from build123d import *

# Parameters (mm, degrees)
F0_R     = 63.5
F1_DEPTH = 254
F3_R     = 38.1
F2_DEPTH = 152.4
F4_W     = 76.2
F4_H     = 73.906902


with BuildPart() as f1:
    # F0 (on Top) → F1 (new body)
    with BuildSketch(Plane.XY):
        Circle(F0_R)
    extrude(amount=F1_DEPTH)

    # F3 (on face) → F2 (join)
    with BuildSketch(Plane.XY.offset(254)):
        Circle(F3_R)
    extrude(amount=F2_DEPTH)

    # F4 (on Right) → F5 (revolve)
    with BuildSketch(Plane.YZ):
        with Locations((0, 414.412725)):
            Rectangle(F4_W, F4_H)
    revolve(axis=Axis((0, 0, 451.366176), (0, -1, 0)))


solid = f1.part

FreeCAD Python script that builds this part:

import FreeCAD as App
import Part
import Sketcher
Q = App.Units.Quantity

doc = App.newDocument("Part")
body = doc.addObject("PartDesign::Body", "Body")

# Sketch on XY plane
sketch1 = doc.addObject("Sketcher::SketchObject", "Sketch")
body.addObject(sketch1)
sketch1.AttachmentSupport = (doc.XY_Plane, [""])
sketch1.MapMode = "FlatFace"
sketch1.addGeometry(Part.Circle(App.Vector(0, 0, 0), App.Vector(0, 0, 1), 63.5), False)
sketch1.addConstraint([
    Sketcher.Constraint("Coincident", 0, 3, -1, 1),
    Sketcher.Constraint("Diameter", 0, Q("5 in")),
])
pad1 = doc.addObject("PartDesign::Pad", "Pad")
body.addObject(pad1)
pad1.Profile = sketch1
pad1.Length = Q("10 in")

# Sketch on XY plane
sketch2 = doc.addObject("Sketcher::SketchObject", "Sketch001")
body.addObject(sketch2)
sketch2.AttachmentSupport = (doc.XY_Plane, [""])
sketch2.MapMode = "FlatFace"
sketch2.AttachmentOffset = App.Placement(App.Vector(0, 0, 10 * 25.4), App.Rotation())
sketch2.addGeometry(Part.Circle(App.Vector(0, 0, 0), App.Vector(0, 0, 1), 38.1), False)
sketch2.addConstraint([
    Sketcher.Constraint("Coincident", 0, 3, -1, 1),
    Sketcher.Constraint("Diameter", 0, Q("3 in")),
])
pad2 = doc.addObject("PartDesign::Pad", "Pad001")
body.addObject(pad2)
pad2.Profile = sketch2
pad2.Length = Q("6 in")

# Sketch on YZ plane
sketch3 = doc.addObject("Sketcher::SketchObject", "Sketch002")
body.addObject(sketch3)
sketch3.AttachmentSupport = (doc.YZ_Plane, [""])
sketch3.MapMode = "FlatFace"
sketch3.addGeometry([
    Part.LineSegment(App.Vector(-38.1, 451.366176, 0), App.Vector(-38.1, 377.459274, 0)),
    Part.LineSegment(App.Vector(-38.1, 377.459274, 0), App.Vector(38.1, 377.459274, 0)),
    Part.LineSegment(App.Vector(38.1, 377.459274, 0), App.Vector(38.1, 451.366176, 0)),
    Part.LineSegment(App.Vector(38.1, 451.366176, 0), App.Vector(-38.1, 451.366176, 0)),
], False)
sketch3.addGeometry(Part.LineSegment(App.Vector(38.1, 451.366176, 0), App.Vector(-38.1, 451.366176, 0)), True)  # axis
sketch3.addConstraint([
    Sketcher.Constraint("Coincident", 0, 2, 1, 1),
    Sketcher.Constraint("Coincident", 1, 2, 2, 1),
    Sketcher.Constraint("Coincident", 2, 2, 3, 1),
    Sketcher.Constraint("Coincident", 3, 2, 0, 1),
    Sketcher.Constraint("Vertical", 0),
    Sketcher.Constraint("Horizontal", 1),
    Sketcher.Constraint("Vertical", 2),
    Sketcher.Constraint("Horizontal", 3),
    Sketcher.Constraint("Horizontal", 4),
    Sketcher.Constraint("Coincident", 4, 1, 2, 2),
    Sketcher.Constraint("Vertical", 0, 2, 4, 2),
    Sketcher.Constraint("DistanceX", 1, 1, 1, 2, Q("3 in")),
    Sketcher.Constraint("DistanceX", 0, 2, -1, 1, Q("1.5 in")),
    Sketcher.Constraint("DistanceY", 0, 2, 0, 1, 73.906902),
    Sketcher.Constraint("DistanceY", -1, 1, 0, 2, 377.459274),
])
revolution = doc.addObject("PartDesign::Revolution", "Revolution")
body.addObject(revolution)
revolution.Profile = sketch3
revolution.ReferenceAxis = (sketch3, ["Axis0"])
revolution.Angle = 360

doc.recompute()
